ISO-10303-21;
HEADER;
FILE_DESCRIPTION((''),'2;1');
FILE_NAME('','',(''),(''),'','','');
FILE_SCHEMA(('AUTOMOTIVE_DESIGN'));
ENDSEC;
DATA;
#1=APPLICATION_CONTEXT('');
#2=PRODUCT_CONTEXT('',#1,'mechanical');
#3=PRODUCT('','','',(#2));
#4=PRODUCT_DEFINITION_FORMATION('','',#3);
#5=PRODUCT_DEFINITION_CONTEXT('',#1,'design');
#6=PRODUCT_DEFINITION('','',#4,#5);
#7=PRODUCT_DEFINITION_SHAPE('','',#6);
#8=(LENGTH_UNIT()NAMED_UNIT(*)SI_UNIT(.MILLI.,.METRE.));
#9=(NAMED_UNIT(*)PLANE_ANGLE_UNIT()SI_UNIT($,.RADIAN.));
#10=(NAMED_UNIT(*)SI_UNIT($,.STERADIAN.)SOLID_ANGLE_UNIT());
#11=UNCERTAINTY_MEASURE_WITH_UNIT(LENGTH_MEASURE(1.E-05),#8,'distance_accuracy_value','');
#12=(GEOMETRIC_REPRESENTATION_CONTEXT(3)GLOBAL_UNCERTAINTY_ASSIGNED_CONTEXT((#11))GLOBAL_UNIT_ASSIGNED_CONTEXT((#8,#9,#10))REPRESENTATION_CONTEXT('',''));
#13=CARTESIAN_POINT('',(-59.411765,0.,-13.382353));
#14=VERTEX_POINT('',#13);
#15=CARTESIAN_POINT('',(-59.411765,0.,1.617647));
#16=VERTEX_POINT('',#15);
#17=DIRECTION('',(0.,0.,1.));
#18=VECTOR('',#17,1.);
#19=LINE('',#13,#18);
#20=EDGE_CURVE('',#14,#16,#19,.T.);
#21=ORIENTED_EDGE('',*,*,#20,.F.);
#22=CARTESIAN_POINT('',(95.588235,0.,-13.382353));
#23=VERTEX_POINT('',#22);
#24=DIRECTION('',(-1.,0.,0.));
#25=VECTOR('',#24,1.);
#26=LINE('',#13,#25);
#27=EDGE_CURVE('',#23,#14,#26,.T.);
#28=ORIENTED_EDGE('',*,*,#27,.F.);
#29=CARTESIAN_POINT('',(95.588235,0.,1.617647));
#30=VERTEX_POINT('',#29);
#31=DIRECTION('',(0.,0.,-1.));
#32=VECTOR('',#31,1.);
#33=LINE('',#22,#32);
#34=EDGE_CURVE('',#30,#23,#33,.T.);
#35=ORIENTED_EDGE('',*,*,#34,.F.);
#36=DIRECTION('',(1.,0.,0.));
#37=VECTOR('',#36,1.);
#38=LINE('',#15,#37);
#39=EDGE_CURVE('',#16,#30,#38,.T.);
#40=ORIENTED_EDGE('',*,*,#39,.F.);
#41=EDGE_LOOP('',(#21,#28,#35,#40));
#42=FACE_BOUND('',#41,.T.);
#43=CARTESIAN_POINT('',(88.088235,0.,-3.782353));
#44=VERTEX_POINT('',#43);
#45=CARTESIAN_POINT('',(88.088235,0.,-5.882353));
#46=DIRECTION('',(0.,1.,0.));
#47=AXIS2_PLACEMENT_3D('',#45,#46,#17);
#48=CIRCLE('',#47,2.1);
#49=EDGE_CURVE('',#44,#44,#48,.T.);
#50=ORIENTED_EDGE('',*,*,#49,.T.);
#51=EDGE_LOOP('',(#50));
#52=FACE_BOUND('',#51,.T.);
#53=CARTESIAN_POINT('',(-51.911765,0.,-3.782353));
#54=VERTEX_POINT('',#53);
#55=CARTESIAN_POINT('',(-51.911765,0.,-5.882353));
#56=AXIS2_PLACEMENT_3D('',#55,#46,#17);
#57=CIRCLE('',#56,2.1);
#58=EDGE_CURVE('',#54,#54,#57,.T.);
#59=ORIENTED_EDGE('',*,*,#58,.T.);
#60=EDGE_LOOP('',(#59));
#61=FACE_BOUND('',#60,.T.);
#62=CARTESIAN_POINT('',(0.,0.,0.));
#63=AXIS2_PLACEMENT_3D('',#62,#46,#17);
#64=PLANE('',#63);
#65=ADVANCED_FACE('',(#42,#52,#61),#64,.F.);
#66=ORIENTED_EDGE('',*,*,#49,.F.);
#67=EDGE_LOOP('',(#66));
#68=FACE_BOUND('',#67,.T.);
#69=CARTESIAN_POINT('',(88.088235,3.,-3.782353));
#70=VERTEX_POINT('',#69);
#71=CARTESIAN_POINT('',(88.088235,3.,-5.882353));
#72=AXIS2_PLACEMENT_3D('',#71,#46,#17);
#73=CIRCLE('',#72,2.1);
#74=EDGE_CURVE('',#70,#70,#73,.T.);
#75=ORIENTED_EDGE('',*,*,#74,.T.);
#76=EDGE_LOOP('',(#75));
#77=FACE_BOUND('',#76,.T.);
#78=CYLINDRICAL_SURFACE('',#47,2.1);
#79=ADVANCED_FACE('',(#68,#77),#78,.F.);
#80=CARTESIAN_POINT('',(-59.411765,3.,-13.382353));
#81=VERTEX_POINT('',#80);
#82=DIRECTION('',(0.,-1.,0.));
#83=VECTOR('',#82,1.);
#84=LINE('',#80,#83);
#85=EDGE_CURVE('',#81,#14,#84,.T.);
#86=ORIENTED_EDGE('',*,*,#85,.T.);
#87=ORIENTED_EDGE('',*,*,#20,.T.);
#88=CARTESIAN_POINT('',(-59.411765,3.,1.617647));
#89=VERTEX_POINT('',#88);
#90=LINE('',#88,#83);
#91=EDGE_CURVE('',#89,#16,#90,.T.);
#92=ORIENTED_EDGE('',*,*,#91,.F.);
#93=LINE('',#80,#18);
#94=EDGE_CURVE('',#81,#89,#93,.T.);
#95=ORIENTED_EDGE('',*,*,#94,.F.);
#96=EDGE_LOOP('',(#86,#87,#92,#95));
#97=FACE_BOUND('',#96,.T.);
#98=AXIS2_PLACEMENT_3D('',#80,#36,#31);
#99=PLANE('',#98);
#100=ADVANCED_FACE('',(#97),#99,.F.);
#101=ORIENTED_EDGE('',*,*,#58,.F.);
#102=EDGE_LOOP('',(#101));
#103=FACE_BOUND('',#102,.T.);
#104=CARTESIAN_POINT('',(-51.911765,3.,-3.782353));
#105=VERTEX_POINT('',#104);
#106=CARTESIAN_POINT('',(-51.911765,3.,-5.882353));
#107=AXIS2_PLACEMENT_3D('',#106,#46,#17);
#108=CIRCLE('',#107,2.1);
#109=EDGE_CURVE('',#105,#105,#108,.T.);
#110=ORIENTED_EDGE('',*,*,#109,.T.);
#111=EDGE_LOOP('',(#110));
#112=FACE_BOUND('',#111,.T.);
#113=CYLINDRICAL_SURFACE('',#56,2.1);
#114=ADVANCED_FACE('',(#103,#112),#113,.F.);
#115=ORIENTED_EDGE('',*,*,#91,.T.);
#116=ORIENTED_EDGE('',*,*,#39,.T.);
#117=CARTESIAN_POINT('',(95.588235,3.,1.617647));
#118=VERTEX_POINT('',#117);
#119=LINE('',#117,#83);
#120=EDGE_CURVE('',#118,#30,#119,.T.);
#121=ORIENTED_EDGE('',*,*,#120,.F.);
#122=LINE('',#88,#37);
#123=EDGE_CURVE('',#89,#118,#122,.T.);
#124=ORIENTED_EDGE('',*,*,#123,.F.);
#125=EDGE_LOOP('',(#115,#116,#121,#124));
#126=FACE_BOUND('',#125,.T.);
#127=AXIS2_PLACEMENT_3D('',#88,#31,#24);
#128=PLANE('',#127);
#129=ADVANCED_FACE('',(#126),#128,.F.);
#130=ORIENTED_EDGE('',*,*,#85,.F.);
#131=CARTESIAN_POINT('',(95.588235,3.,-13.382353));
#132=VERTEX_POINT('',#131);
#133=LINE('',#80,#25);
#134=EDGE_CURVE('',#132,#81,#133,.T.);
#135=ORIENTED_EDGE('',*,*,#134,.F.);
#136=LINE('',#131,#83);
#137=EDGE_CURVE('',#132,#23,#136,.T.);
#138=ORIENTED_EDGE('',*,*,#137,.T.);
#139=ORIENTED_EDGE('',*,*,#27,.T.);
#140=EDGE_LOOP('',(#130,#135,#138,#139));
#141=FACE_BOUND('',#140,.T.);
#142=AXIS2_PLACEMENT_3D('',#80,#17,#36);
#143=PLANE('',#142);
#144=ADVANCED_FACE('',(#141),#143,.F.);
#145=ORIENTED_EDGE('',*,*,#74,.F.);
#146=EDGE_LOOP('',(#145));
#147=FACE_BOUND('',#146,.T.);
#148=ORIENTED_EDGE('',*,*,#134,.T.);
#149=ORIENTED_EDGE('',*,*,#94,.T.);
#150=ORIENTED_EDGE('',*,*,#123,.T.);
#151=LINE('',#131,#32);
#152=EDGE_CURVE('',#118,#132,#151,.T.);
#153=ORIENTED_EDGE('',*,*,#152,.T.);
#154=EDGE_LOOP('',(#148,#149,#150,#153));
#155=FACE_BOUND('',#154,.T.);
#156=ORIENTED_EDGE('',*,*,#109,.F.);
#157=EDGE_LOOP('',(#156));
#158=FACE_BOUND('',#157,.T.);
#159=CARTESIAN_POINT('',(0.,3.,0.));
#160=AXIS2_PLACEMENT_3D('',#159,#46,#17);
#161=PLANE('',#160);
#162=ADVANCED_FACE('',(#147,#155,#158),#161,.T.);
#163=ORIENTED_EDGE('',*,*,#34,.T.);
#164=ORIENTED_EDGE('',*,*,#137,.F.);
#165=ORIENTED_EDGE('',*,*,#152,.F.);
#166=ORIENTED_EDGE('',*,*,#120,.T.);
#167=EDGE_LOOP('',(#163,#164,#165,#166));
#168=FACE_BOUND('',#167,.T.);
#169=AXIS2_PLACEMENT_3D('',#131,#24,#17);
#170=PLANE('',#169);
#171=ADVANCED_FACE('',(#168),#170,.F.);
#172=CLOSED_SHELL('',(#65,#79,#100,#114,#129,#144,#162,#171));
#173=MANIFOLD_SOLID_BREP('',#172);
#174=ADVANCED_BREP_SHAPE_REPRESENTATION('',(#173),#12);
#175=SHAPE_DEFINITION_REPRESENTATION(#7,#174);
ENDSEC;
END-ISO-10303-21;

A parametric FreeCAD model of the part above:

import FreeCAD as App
import Part
import Sketcher
Q = App.Units.Quantity


def add_polygon(sketch, points):
    """Adds a closed chain of lines whose ends are joined by coincident constraints."""
    first, n = sketch.GeometryCount, len(points)
    for a, b in zip(points, points[1:] + points[:1]):
        sketch.addGeometry(Part.LineSegment(App.Vector(*a, 0), App.Vector(*b, 0)), False)
    for i in range(n):
        sketch.addConstraint(Sketcher.Constraint("Coincident", first + i, 2, first + (i + 1) % n, 1))

doc = App.newDocument("Part")
body = doc.addObject("PartDesign::Body", "Body")

sketch1 = doc.addObject("Sketcher::SketchObject", "Sketch")
body.addObject(sketch1)
sketch1.AttachmentSupport = (doc.XZ_Plane, [""])
sketch1.MapMode = "FlatFace"
add_polygon(sketch1, [(-59.411765, -13.382353), (-59.411765, 1.617647), (95.588235, 1.617647), (95.588235, -13.382353)])
sketch1.addConstraint(Sketcher.Constraint("Vertical", 0))
sketch1.addConstraint(Sketcher.Constraint("Horizontal", 1))
sketch1.addConstraint(Sketcher.Constraint("Vertical", 2))
sketch1.addConstraint(Sketcher.Constraint("Horizontal", 3))
sketch1.addConstraint(Sketcher.Constraint("DistanceX", 1, 1, 1, 2, Q("155 mm")))
sketch1.addConstraint(Sketcher.Constraint("DistanceY", 0, 1, 0, 2, Q("15 mm")))
sketch1.addConstraint(Sketcher.Constraint("DistanceX", 0, 2, -1, 1, Q("59.411765 mm")))
sketch1.addConstraint(Sketcher.Constraint("DistanceY", -1, 1, 0, 2, Q("1.617647 mm")))
pad1 = doc.addObject("PartDesign::Pad", "Pad")
body.addObject(pad1)
pad1.Profile = sketch1
pad1.Length = 3
pad1.Reversed = True

sketch2 = doc.addObject("Sketcher::SketchObject", "Sketch001")
body.addObject(sketch2)
sketch2.AttachmentSupport = (doc.XZ_Plane, [""])
sketch2.MapMode = "FlatFace"
sketch2.AttachmentOffset = App.Placement(App.Vector(0, 0, -3), App.Rotation())
sketch2.addGeometry(Part.Circle(App.Vector(-51.911765, -5.882353, 0), App.Vector(0, 0, 1), 2.1), False)
sketch2.addGeometry(Part.Circle(App.Vector(88.088235, -5.882353, 0), App.Vector(0, 0, 1), 2.1), False)
sketch2.addConstraint(Sketcher.Constraint("Equal", 0, 1))
sketch2.addConstraint(Sketcher.Constraint("Horizontal", 0, 3, 1, 3))
sketch2.addConstraint(Sketcher.Constraint("Diameter", 0, Q("4.2 mm")))
sketch2.addConstraint(Sketcher.Constraint("DistanceX", 0, 3, 1, 3, Q("140 mm")))
sketch2.addConstraint(Sketcher.Constraint("DistanceX", 0, 3, -1, 1, Q("51.911765 mm")))
sketch2.addConstraint(Sketcher.Constraint("DistanceY", 0, 3, -1, 1, Q("5.882353 mm")))
pocket1 = doc.addObject("PartDesign::Pocket", "Pocket")
body.addObject(pocket1)
pocket1.Profile = sketch2
pocket1.Length = 3
pocket1.Reversed = True

doc.recompute()
